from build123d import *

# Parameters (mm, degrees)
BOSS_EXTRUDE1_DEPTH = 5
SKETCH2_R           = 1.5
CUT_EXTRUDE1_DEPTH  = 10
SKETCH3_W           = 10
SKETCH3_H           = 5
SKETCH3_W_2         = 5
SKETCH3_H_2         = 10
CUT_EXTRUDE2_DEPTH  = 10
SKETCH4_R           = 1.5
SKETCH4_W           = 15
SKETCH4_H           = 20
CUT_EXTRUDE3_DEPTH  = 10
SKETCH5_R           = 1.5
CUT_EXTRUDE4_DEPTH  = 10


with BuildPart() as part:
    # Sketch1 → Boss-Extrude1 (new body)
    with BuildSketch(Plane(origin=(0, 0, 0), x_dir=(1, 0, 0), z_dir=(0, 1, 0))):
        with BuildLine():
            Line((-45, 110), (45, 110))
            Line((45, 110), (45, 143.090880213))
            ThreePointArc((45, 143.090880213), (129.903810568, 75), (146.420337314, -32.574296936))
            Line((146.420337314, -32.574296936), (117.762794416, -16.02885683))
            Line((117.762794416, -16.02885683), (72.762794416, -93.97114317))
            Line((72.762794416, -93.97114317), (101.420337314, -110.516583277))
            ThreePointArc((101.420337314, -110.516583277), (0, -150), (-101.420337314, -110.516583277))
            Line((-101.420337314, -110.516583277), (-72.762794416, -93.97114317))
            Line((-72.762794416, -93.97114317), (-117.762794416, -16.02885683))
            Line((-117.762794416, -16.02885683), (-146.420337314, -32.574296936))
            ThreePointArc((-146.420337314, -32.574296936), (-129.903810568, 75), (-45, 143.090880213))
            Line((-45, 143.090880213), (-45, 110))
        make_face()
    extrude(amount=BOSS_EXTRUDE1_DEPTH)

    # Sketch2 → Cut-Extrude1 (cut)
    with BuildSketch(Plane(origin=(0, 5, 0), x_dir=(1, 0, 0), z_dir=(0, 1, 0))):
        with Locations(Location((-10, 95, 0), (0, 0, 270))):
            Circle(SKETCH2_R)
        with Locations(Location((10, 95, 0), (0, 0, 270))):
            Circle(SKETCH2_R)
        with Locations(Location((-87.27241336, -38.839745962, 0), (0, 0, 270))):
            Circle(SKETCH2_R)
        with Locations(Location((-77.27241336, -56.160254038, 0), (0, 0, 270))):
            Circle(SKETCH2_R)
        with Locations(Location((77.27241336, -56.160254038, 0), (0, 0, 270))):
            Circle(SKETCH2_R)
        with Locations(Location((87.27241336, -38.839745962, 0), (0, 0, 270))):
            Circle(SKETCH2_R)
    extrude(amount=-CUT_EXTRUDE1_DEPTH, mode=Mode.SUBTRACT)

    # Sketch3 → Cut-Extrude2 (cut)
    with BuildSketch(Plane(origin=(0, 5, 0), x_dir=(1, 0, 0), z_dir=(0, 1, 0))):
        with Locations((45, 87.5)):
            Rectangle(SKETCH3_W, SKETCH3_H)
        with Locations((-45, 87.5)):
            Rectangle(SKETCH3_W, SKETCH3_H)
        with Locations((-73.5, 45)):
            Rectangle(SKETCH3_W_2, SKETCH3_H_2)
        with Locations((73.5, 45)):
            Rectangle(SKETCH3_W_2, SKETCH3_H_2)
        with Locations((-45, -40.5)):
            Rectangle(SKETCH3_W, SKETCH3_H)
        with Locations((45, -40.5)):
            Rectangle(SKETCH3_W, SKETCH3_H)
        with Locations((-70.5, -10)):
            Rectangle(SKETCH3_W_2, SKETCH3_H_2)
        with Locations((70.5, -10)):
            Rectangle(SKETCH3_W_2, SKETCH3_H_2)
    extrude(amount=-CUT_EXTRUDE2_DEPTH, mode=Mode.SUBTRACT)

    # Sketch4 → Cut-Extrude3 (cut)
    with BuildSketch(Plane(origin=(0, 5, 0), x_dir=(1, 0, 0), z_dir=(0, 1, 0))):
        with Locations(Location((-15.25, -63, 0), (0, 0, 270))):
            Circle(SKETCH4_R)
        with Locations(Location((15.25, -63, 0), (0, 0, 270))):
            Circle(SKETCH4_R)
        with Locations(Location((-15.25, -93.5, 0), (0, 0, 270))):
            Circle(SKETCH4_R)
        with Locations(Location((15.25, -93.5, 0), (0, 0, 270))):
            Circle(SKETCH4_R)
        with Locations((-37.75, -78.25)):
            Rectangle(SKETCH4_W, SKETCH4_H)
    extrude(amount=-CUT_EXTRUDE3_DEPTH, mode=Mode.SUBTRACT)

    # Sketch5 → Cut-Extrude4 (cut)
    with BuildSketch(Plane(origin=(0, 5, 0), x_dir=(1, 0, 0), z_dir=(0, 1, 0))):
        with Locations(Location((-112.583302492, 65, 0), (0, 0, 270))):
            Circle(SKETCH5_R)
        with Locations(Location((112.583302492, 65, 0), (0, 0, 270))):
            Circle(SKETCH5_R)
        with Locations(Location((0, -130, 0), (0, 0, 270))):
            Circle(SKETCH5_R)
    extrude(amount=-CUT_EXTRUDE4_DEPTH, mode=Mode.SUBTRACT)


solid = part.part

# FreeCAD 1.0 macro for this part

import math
import FreeCAD as App
import Part
import Sketcher
from FreeCAD import Vector
Q = App.Units.Quantity


def add_polygon(sketch, points):
    """Adds a closed chain of lines whose ends are joined by coincident constraints."""
    first, n = sketch.GeometryCount, len(points)
    for a, b in zip(points, points[1:] + points[:1]):
        sketch.addGeometry(Part.LineSegment(App.Vector(*a, 0), App.Vector(*b, 0)), False)
    for i in range(n):
        sketch.addConstraint(Sketcher.Constraint("Coincident", first + i, 2, first + (i + 1) % n, 1))

doc = App.newDocument("Part")
body = doc.addObject("PartDesign::Body", "Body")

# Sketch on XZ plane
sketch1 = doc.addObject("Sketcher::SketchObject", "Sketch")
body.addObject(sketch1)
sketch1.AttachmentSupport = (doc.XZ_Plane, [""])
sketch1.MapMode = "FlatFace"
sketch1.addGeometry(Part.LineSegment(Vector(45, -110, 0), Vector(-45, -110, 0)), False)
sketch1.addGeometry(Part.LineSegment(Vector(-45, -110, 0), Vector(-45, -143, 0)), False)
sketch1.addGeometry(Part.ArcOfCircle(Part.Circle(Vector(0, 0, 0), Vector(0, 0, 1), 150), math.radians(167), math.radians(253)), False)
sketch1.addGeometry(Part.LineSegment(Vector(-146, 33, 0), Vector(-118, 16, 0)), False)
sketch1.addGeometry(Part.LineSegment(Vector(-118, 16, 0), Vector(-73, 94, 0)), False)
sketch1.addGeometry(Part.LineSegment(Vector(-73, 94, 0), Vector(-101, 111, 0)), False)
sketch1.addGeometry(Part.ArcOfCircle(Part.Circle(Vector(0, 0, 0), Vector(0, 0, 1), 150), math.radians(47), math.radians(133)), False)
sketch1.addGeometry(Part.LineSegment(Vector(101, 111, 0), Vector(73, 94, 0)), False)
sketch1.addGeometry(Part.LineSegment(Vector(73, 94, 0), Vector(118, 16, 0)), False)
sketch1.addGeometry(Part.LineSegment(Vector(118, 16, 0), Vector(146, 33, 0)), False)
sketch1.addGeometry(Part.ArcOfCircle(Part.Circle(Vector(0, 0, 0), Vector(0, 0, 1), 150), math.radians(-73), math.radians(13)), False)
sketch1.addGeometry(Part.LineSegment(Vector(45, -143, 0), Vector(45, -110, 0)), False)
sketch1.addConstraint(Sketcher.Constraint("Coincident", 0, 2, 1, 1))
sketch1.addConstraint(Sketcher.Constraint("Coincident", 1, 2, 2, 2))
sketch1.addConstraint(Sketcher.Constraint("Coincident", 2, 1, 3, 1))
sketch1.addConstraint(Sketcher.Constraint("Coincident", 3, 2, 4, 1))
sketch1.addConstraint(Sketcher.Constraint("Coincident", 4, 2, 5, 1))
sketch1.addConstraint(Sketcher.Constraint("Coincident", 5, 2, 6, 2))
sketch1.addConstraint(Sketcher.Constraint("Coincident", 6, 1, 7, 1))
sketch1.addConstraint(Sketcher.Constraint("Coincident", 7, 2, 8, 1))
sketch1.addConstraint(Sketcher.Constraint("Coincident", 8, 2, 9, 1))
sketch1.addConstraint(Sketcher.Constraint("Coincident", 9, 2, 10, 2))
sketch1.addConstraint(Sketcher.Constraint("Coincident", 10, 1, 11, 1))
sketch1.addConstraint(Sketcher.Constraint("Coincident", 11, 2, 0, 1))
sketch1.addConstraint(Sketcher.Constraint("Horizontal", 0))
sketch1.addConstraint(Sketcher.Constraint("Vertical", 1))
sketch1.addConstraint(Sketcher.Constraint("Vertical", 11))
sketch1.addConstraint(Sketcher.Constraint("Coincident", 2, 3, -1, 1))
sketch1.addConstraint(Sketcher.Constraint("Coincident", 6, 3, -1, 1))
sketch1.addConstraint(Sketcher.Constraint("Coincident", 10, 3, -1, 1))
sketch1.addConstraint(Sketcher.Constraint("Equal", 2, 6))
sketch1.addConstraint(Sketcher.Constraint("Equal", 6, 10))
sketch1.addConstraint(Sketcher.Constraint("Symmetric", 4, 2, 7, 2, -2))
sketch1.addConstraint(Sketcher.Constraint("Symmetric", 3, 2, 8, 2, -2))
sketch1.addConstraint(Sketcher.Constraint("Perpendicular", 3, 4))
sketch1.addConstraint(Sketcher.Constraint("Perpendicular", 4, 5))
sketch1.addConstraint(Sketcher.Constraint("Perpendicular", 7, 8))
sketch1.addConstraint(Sketcher.Constraint("Perpendicular", 8, 9))
sketch1.addConstraint(Sketcher.Constraint("Horizontal", 1, 2, 10, 1))
sketch1.addConstraint(Sketcher.Constraint("Equal", 3, 5))
sketch1.addConstraint(Sketcher.Constraint("Radius", 2, 150.0))
sketch1.addConstraint(Sketcher.Constraint("DistanceX", 0, 2, 0, 1, 90.0))
sketch1.addConstraint(Sketcher.Constraint("Angle", 3, Q("-30 deg")))
sketch1.addConstraint(Sketcher.Constraint("Distance", 4, 90.0))
sketch1.addConstraint(Sketcher.Constraint("DistanceY", 0, 2, -1, 1, 110.0))
sketch1.addConstraint(Sketcher.Constraint("Distance", 3, 33.09088))
pad1 = doc.addObject("PartDesign::Pad", "Pad")
body.addObject(pad1)
pad1.Profile = sketch1
pad1.Length = 5
pad1.Reversed = True

# Sketch on XZ plane
sketch2 = doc.addObject("Sketcher::SketchObject", "Sketch001")
body.addObject(sketch2)
sketch2.AttachmentSupport = (doc.XZ_Plane, [""])
sketch2.MapMode = "FlatFace"
sketch2.AttachmentOffset = App.Placement(Vector(0, 0, -5), App.Rotation())
sketch2.addGeometry(Part.Circle(Vector(-10, -95, 0), Vector(0, 0, 1), 1.5), False)
sketch2.addGeometry(Part.Circle(Vector(10, -95, 0), Vector(0, 0, 1), 1.5), False)
sketch2.addGeometry(Part.Circle(Vector(-87.3, 38.8, 0), Vector(0, 0, 1), 1.5), False)
sketch2.addGeometry(Part.Circle(Vector(-77.3, 56.2, 0), Vector(0, 0, 1), 1.5), False)
sketch2.addGeometry(Part.Circle(Vector(77.3, 56.2, 0), Vector(0, 0, 1), 1.5), False)
sketch2.addGeometry(Part.Circle(Vector(87.3, 38.8, 0), Vector(0, 0, 1), 1.5), False)
sketch2.addConstraint(Sketcher.Constraint("Equal", 0, 1))
sketch2.addConstraint(Sketcher.Constraint("Equal", 1, 2))
sketch2.addConstraint(Sketcher.Constraint("Equal", 2, 3))
sketch2.addConstraint(Sketcher.Constraint("Equal", 3, 4))
sketch2.addConstraint(Sketcher.Constraint("Equal", 4, 5))
sketch2.addConstraint(Sketcher.Constraint("Symmetric", 0, 3, 1, 3, -2))
sketch2.addConstraint(Sketcher.Constraint("Symmetric", 3, 3, 4, 3, -2))
sketch2.addConstraint(Sketcher.Constraint("Symmetric", 2, 3, 5, 3, -2))
sketch2.addConstraint(Sketcher.Constraint("Diameter", 0, 3.0))
sketch2.addConstraint(Sketcher.Constraint("DistanceX", 0, 3, -1, 1, 10.0))
sketch2.addConstraint(Sketcher.Constraint("DistanceY", 0, 3, -1, 1, 95.0))
sketch2.addConstraint(Sketcher.Constraint("DistanceX", 2, 3, 3, 3, 10.0))
sketch2.addConstraint(Sketcher.Constraint("DistanceY", 2, 3, 3, 3, 17.320508))
sketch2.addConstraint(Sketcher.Constraint("DistanceX", 2, 3, -1, 1, 87.272413))
sketch2.addConstraint(Sketcher.Constraint("DistanceY", -1, 1, 2, 3, 38.839746))
pocket1 = doc.addObject("PartDesign::Pocket", "Pocket")
body.addObject(pocket1)
pocket1.Profile = sketch2
pocket1.Length = 10
pocket1.Reversed = True

# Sketch on XZ plane
sketch3 = doc.addObject("Sketcher::SketchObject", "Sketch002")
body.addObject(sketch3)
sketch3.AttachmentSupport = (doc.XZ_Plane, [""])
sketch3.MapMode = "FlatFace"
sketch3.AttachmentOffset = App.Placement(Vector(0, 0, -5), App.Rotation())
add_polygon(sketch3, [(40, -90), (40, -85), (50, -85), (50, -90)])  # lines 0-3
add_polygon(sketch3, [(-50, -90), (-50, -85), (-40, -85), (-40, -90)])  # lines 4-7
add_polygon(sketch3, [(-76, -50), (-76, -40), (-71, -40), (-71, -50)])  # lines 8-11
add_polygon(sketch3, [(71, -50), (71, -40), (76, -40), (76, -50)])  # lines 12-15
add_polygon(sketch3, [(-50, 38), (-50, 43), (-40, 43), (-40, 38)])  # lines 16-19
add_polygon(sketch3, [(40, 38), (40, 43), (50, 43), (50, 38)])  # lines 20-23
add_polygon(sketch3, [(-73, 5), (-73, 15), (-68, 15), (-68, 5)])  # lines 24-27
add_polygon(sketch3, [(68, 5), (68, 15), (73, 15), (73, 5)])  # lines 28-31
sketch3.addConstraint(Sketcher.Constraint("Vertical", 0))
sketch3.addConstraint(Sketcher.Constraint("Horizontal", 1))
sketch3.addConstraint(Sketcher.Constraint("Vertical", 2))
sketch3.addConstraint(Sketcher.Constraint("Horizontal", 3))
sketch3.addConstraint(Sketcher.Constraint("Vertical", 4))
sketch3.addConstraint(Sketcher.Constraint("Horizontal", 5))
sketch3.addConstraint(Sketcher.Constraint("Vertical", 6))
sketch3.addConstraint(Sketcher.Constraint("Horizontal", 7))
sketch3.addConstraint(Sketcher.Constraint("Vertical", 8))
sketch3.addConstraint(Sketcher.Constraint("Horizontal", 9))
sketch3.addConstraint(Sketcher.Constraint("Vertical", 10))
sketch3.addConstraint(Sketcher.Constraint("Horizontal", 11))
sketch3.addConstraint(Sketcher.Constraint("Vertical", 12))
sketch3.addConstraint(Sketcher.Constraint("Horizontal", 13))
sketch3.addConstraint(Sketcher.Constraint("Vertical", 14))
sketch3.addConstraint(Sketcher.Constraint("Horizontal", 15))
sketch3.addConstraint(Sketcher.Constraint("Vertical", 16))
sketch3.addConstraint(Sketcher.Constraint("Horizontal", 17))
sketch3.addConstraint(Sketcher.Constraint("Vertical", 18))
sketch3.addConstraint(Sketcher.Constraint("Horizontal", 19))
sketch3.addConstraint(Sketcher.Constraint("Vertical", 20))
sketch3.addConstraint(Sketcher.Constraint("Horizontal", 21))
sketch3.addConstraint(Sketcher.Constraint("Vertical", 22))
sketch3.addConstraint(Sketcher.Constraint("Horizontal", 23))
sketch3.addConstraint(Sketcher.Constraint("Vertical", 24))
sketch3.addConstraint(Sketcher.Constraint("Horizontal", 25))
sketch3.addConstraint(Sketcher.Constraint("Vertical", 26))
sketch3.addConstraint(Sketcher.Constraint("Horizontal", 27))
sketch3.addConstraint(Sketcher.Constraint("Vertical", 28))
sketch3.addConstraint(Sketcher.Constraint("Horizontal", 29))
sketch3.addConstraint(Sketcher.Constraint("Vertical", 30))
sketch3.addConstraint(Sketcher.Constraint("Horizontal", 31))
sketch3.addConstraint(Sketcher.Constraint("Symmetric", 1, 2, 4, 2, -2))
sketch3.addConstraint(Sketcher.Constraint("Symmetric", 3, 2, 6, 2, -2))
sketch3.addConstraint(Sketcher.Constraint("Symmetric", 9, 2, 12, 2, -2))
sketch3.addConstraint(Sketcher.Constraint("Symmetric", 11, 2, 14, 2, -2))
sketch3.addConstraint(Sketcher.Constraint("Symmetric", 17, 2, 20, 2, -2))
sketch3.addConstraint(Sketcher.Constraint("Symmetric", 19, 2, 22, 2, -2))
sketch3.addConstraint(Sketcher.Constraint("Symmetric", 25, 2, 28, 2, -2))
sketch3.addConstraint(Sketcher.Constraint("Symmetric", 27, 2, 30, 2, -2))
sketch3.addConstraint(Sketcher.Constraint("Vertical", 7, 2, 16, 2))
sketch3.addConstraint(Sketcher.Constraint("Vertical", 6, 2, 17, 2))
sketch3.addConstraint(Sketcher.Constraint("Equal", 15, 25))
sketch3.addConstraint(Sketcher.Constraint("Equal", 31, 0))
sketch3.addConstraint(Sketcher.Constraint("Equal", 23, 8))
sketch3.addConstraint(Sketcher.Constraint("Equal", 6, 16))
sketch3.addConstraint(Sketcher.Constraint("Equal", 14, 24))
sketch3.addConstraint(Sketcher.Constraint("DistanceX", 1, 1, 1, 2, 10.0))
sketch3.addConstraint(Sketcher.Constraint("DistanceX", 9, 1, 9, 2, 5.0))
sketch3.addConstraint(Sketcher.Constraint("DistanceX", -1, 1, 0, 2, 40.0))
sketch3.addConstraint(Sketcher.Constraint("DistanceY", 0, 2, -1, 1, 85.0))
sketch3.addConstraint(Sketcher.Constraint("DistanceX", 8, 2, -1, 1, 76.0))
sketch3.addConstraint(Sketcher.Constraint("DistanceY", 8, 2, -1, 1, 40.0))
sketch3.addConstraint(Sketcher.Constraint("DistanceY", -1, 1, 16, 2, 43.0))
sketch3.addConstraint(Sketcher.Constraint("DistanceX", 24, 2, -1, 1, 73.0))
sketch3.addConstraint(Sketcher.Constraint("DistanceY", -1, 1, 24, 2, 15.0))
pocket2 = doc.addObject("PartDesign::Pocket", "Pocket001")
body.addObject(pocket2)
pocket2.Profile = sketch3
pocket2.Length = 10
pocket2.Reversed = True

# Sketch on XZ plane
sketch4 = doc.addObject("Sketcher::SketchObject", "Sketch003")
body.addObject(sketch4)
sketch4.AttachmentSupport = (doc.XZ_Plane, [""])
sketch4.MapMode = "FlatFace"
sketch4.AttachmentOffset = App.Placement(Vector(0, 0, -5), App.Rotation())
sketch4.addGeometry(Part.Circle(Vector(-15.2, 63, 0), Vector(0, 0, 1), 1.5), False)  # 0
sketch4.addGeometry(Part.Circle(Vector(15.2, 63, 0), Vector(0, 0, 1), 1.5), False)  # 1
sketch4.addGeometry(Part.Circle(Vector(-15.2, 93.5, 0), Vector(0, 0, 1), 1.5), False)  # 2
sketch4.addGeometry(Part.Circle(Vector(15.2, 93.5, 0), Vector(0, 0, 1), 1.5), False)  # 3
add_polygon(sketch4, [(-45.2, 68.2), (-45.2, 88.2), (-30.2, 88.2), (-30.2, 68.2)])  # lines 4-7
sketch4.addConstraint(Sketcher.Constraint("Vertical", 4))
sketch4.addConstraint(Sketcher.Constraint("Horizontal", 5))
sketch4.addConstraint(Sketcher.Constraint("Vertical", 6))
sketch4.addConstraint(Sketcher.Constraint("Horizontal", 7))
sketch4.addConstraint(Sketcher.Constraint("Equal", 0, 1))
sketch4.addConstraint(Sketcher.Constraint("Equal", 1, 2))
sketch4.addConstraint(Sketcher.Constraint("Equal", 2, 3))
sketch4.addConstraint(Sketcher.Constraint("Symmetric", 0, 3, 1, 3, -2))
sketch4.addConstraint(Sketcher.Constraint("Symmetric", 2, 3, 3, 3, -2))
sketch4.addConstraint(Sketcher.Constraint("Vertical", 0, 3, 2, 3))
sketch4.addConstraint(Sketcher.Constraint("Diameter", 0, 3.0))
sketch4.addConstraint(Sketcher.Constraint("DistanceX", 5, 1, 5, 2, 15.0))
sketch4.addConstraint(Sketcher.Constraint("DistanceY", 4, 1, 4, 2, 20.0))
sketch4.addConstraint(Sketcher.Constraint("DistanceY", -1, 1, 0, 3, 63.0))
sketch4.addConstraint(Sketcher.Constraint("DistanceX", 4, 2, 2, 3, 30.0))
sketch4.addConstraint(Sketcher.Constraint("DistanceY", -1, 1, 2, 3, 93.5))
sketch4.addConstraint(Sketcher.Constraint("DistanceX", 0, 3, 1, 3, 30.5))
sketch4.addConstraint(Sketcher.Constraint("DistanceY", -1, 1, 4, 2, 88.25))
pocket3 = doc.addObject("PartDesign::Pocket", "Pocket002")
body.addObject(pocket3)
pocket3.Profile = sketch4
pocket3.Length = 10
pocket3.Reversed = True

# Sketch on XZ plane
sketch5 = doc.addObject("Sketcher::SketchObject", "Sketch004")
body.addObject(sketch5)
sketch5.AttachmentSupport = (doc.XZ_Plane, [""])
sketch5.MapMode = "FlatFace"
sketch5.AttachmentOffset = App.Placement(Vector(0, 0, -5), App.Rotation())
sketch5.addGeometry(Part.Circle(Vector(-112.6, -65, 0), Vector(0, 0, 1), 1.5), False)
sketch5.addGeometry(Part.Circle(Vector(112.6, -65, 0), Vector(0, 0, 1), 1.5), False)
sketch5.addGeometry(Part.Circle(Vector(0, 130, 0), Vector(0, 0, 1), 1.5), False)
sketch5.addConstraint(Sketcher.Constraint("Equal", 0, 1))
sketch5.addConstraint(Sketcher.Constraint("Equal", 1, 2))
sketch5.addConstraint(Sketcher.Constraint("Symmetric", 0, 3, 1, 3, -2))
sketch5.addConstraint(Sketcher.Constraint("PointOnObject", 2, 3, -2))
sketch5.addConstraint(Sketcher.Constraint("Diameter", 0, 3.0))
sketch5.addConstraint(Sketcher.Constraint("DistanceY", 0, 3, -1, 1, 65.0))
sketch5.addConstraint(Sketcher.Constraint("DistanceY", -1, 1, 2, 3, 130.0))
sketch5.addConstraint(Sketcher.Constraint("DistanceX", 0, 3, -1, 1, 112.583302))
pocket4 = doc.addObject("PartDesign::Pocket", "Pocket003")
body.addObject(pocket4)
pocket4.Profile = sketch5
pocket4.Length = 10
pocket4.Reversed = True

doc.recompute()
